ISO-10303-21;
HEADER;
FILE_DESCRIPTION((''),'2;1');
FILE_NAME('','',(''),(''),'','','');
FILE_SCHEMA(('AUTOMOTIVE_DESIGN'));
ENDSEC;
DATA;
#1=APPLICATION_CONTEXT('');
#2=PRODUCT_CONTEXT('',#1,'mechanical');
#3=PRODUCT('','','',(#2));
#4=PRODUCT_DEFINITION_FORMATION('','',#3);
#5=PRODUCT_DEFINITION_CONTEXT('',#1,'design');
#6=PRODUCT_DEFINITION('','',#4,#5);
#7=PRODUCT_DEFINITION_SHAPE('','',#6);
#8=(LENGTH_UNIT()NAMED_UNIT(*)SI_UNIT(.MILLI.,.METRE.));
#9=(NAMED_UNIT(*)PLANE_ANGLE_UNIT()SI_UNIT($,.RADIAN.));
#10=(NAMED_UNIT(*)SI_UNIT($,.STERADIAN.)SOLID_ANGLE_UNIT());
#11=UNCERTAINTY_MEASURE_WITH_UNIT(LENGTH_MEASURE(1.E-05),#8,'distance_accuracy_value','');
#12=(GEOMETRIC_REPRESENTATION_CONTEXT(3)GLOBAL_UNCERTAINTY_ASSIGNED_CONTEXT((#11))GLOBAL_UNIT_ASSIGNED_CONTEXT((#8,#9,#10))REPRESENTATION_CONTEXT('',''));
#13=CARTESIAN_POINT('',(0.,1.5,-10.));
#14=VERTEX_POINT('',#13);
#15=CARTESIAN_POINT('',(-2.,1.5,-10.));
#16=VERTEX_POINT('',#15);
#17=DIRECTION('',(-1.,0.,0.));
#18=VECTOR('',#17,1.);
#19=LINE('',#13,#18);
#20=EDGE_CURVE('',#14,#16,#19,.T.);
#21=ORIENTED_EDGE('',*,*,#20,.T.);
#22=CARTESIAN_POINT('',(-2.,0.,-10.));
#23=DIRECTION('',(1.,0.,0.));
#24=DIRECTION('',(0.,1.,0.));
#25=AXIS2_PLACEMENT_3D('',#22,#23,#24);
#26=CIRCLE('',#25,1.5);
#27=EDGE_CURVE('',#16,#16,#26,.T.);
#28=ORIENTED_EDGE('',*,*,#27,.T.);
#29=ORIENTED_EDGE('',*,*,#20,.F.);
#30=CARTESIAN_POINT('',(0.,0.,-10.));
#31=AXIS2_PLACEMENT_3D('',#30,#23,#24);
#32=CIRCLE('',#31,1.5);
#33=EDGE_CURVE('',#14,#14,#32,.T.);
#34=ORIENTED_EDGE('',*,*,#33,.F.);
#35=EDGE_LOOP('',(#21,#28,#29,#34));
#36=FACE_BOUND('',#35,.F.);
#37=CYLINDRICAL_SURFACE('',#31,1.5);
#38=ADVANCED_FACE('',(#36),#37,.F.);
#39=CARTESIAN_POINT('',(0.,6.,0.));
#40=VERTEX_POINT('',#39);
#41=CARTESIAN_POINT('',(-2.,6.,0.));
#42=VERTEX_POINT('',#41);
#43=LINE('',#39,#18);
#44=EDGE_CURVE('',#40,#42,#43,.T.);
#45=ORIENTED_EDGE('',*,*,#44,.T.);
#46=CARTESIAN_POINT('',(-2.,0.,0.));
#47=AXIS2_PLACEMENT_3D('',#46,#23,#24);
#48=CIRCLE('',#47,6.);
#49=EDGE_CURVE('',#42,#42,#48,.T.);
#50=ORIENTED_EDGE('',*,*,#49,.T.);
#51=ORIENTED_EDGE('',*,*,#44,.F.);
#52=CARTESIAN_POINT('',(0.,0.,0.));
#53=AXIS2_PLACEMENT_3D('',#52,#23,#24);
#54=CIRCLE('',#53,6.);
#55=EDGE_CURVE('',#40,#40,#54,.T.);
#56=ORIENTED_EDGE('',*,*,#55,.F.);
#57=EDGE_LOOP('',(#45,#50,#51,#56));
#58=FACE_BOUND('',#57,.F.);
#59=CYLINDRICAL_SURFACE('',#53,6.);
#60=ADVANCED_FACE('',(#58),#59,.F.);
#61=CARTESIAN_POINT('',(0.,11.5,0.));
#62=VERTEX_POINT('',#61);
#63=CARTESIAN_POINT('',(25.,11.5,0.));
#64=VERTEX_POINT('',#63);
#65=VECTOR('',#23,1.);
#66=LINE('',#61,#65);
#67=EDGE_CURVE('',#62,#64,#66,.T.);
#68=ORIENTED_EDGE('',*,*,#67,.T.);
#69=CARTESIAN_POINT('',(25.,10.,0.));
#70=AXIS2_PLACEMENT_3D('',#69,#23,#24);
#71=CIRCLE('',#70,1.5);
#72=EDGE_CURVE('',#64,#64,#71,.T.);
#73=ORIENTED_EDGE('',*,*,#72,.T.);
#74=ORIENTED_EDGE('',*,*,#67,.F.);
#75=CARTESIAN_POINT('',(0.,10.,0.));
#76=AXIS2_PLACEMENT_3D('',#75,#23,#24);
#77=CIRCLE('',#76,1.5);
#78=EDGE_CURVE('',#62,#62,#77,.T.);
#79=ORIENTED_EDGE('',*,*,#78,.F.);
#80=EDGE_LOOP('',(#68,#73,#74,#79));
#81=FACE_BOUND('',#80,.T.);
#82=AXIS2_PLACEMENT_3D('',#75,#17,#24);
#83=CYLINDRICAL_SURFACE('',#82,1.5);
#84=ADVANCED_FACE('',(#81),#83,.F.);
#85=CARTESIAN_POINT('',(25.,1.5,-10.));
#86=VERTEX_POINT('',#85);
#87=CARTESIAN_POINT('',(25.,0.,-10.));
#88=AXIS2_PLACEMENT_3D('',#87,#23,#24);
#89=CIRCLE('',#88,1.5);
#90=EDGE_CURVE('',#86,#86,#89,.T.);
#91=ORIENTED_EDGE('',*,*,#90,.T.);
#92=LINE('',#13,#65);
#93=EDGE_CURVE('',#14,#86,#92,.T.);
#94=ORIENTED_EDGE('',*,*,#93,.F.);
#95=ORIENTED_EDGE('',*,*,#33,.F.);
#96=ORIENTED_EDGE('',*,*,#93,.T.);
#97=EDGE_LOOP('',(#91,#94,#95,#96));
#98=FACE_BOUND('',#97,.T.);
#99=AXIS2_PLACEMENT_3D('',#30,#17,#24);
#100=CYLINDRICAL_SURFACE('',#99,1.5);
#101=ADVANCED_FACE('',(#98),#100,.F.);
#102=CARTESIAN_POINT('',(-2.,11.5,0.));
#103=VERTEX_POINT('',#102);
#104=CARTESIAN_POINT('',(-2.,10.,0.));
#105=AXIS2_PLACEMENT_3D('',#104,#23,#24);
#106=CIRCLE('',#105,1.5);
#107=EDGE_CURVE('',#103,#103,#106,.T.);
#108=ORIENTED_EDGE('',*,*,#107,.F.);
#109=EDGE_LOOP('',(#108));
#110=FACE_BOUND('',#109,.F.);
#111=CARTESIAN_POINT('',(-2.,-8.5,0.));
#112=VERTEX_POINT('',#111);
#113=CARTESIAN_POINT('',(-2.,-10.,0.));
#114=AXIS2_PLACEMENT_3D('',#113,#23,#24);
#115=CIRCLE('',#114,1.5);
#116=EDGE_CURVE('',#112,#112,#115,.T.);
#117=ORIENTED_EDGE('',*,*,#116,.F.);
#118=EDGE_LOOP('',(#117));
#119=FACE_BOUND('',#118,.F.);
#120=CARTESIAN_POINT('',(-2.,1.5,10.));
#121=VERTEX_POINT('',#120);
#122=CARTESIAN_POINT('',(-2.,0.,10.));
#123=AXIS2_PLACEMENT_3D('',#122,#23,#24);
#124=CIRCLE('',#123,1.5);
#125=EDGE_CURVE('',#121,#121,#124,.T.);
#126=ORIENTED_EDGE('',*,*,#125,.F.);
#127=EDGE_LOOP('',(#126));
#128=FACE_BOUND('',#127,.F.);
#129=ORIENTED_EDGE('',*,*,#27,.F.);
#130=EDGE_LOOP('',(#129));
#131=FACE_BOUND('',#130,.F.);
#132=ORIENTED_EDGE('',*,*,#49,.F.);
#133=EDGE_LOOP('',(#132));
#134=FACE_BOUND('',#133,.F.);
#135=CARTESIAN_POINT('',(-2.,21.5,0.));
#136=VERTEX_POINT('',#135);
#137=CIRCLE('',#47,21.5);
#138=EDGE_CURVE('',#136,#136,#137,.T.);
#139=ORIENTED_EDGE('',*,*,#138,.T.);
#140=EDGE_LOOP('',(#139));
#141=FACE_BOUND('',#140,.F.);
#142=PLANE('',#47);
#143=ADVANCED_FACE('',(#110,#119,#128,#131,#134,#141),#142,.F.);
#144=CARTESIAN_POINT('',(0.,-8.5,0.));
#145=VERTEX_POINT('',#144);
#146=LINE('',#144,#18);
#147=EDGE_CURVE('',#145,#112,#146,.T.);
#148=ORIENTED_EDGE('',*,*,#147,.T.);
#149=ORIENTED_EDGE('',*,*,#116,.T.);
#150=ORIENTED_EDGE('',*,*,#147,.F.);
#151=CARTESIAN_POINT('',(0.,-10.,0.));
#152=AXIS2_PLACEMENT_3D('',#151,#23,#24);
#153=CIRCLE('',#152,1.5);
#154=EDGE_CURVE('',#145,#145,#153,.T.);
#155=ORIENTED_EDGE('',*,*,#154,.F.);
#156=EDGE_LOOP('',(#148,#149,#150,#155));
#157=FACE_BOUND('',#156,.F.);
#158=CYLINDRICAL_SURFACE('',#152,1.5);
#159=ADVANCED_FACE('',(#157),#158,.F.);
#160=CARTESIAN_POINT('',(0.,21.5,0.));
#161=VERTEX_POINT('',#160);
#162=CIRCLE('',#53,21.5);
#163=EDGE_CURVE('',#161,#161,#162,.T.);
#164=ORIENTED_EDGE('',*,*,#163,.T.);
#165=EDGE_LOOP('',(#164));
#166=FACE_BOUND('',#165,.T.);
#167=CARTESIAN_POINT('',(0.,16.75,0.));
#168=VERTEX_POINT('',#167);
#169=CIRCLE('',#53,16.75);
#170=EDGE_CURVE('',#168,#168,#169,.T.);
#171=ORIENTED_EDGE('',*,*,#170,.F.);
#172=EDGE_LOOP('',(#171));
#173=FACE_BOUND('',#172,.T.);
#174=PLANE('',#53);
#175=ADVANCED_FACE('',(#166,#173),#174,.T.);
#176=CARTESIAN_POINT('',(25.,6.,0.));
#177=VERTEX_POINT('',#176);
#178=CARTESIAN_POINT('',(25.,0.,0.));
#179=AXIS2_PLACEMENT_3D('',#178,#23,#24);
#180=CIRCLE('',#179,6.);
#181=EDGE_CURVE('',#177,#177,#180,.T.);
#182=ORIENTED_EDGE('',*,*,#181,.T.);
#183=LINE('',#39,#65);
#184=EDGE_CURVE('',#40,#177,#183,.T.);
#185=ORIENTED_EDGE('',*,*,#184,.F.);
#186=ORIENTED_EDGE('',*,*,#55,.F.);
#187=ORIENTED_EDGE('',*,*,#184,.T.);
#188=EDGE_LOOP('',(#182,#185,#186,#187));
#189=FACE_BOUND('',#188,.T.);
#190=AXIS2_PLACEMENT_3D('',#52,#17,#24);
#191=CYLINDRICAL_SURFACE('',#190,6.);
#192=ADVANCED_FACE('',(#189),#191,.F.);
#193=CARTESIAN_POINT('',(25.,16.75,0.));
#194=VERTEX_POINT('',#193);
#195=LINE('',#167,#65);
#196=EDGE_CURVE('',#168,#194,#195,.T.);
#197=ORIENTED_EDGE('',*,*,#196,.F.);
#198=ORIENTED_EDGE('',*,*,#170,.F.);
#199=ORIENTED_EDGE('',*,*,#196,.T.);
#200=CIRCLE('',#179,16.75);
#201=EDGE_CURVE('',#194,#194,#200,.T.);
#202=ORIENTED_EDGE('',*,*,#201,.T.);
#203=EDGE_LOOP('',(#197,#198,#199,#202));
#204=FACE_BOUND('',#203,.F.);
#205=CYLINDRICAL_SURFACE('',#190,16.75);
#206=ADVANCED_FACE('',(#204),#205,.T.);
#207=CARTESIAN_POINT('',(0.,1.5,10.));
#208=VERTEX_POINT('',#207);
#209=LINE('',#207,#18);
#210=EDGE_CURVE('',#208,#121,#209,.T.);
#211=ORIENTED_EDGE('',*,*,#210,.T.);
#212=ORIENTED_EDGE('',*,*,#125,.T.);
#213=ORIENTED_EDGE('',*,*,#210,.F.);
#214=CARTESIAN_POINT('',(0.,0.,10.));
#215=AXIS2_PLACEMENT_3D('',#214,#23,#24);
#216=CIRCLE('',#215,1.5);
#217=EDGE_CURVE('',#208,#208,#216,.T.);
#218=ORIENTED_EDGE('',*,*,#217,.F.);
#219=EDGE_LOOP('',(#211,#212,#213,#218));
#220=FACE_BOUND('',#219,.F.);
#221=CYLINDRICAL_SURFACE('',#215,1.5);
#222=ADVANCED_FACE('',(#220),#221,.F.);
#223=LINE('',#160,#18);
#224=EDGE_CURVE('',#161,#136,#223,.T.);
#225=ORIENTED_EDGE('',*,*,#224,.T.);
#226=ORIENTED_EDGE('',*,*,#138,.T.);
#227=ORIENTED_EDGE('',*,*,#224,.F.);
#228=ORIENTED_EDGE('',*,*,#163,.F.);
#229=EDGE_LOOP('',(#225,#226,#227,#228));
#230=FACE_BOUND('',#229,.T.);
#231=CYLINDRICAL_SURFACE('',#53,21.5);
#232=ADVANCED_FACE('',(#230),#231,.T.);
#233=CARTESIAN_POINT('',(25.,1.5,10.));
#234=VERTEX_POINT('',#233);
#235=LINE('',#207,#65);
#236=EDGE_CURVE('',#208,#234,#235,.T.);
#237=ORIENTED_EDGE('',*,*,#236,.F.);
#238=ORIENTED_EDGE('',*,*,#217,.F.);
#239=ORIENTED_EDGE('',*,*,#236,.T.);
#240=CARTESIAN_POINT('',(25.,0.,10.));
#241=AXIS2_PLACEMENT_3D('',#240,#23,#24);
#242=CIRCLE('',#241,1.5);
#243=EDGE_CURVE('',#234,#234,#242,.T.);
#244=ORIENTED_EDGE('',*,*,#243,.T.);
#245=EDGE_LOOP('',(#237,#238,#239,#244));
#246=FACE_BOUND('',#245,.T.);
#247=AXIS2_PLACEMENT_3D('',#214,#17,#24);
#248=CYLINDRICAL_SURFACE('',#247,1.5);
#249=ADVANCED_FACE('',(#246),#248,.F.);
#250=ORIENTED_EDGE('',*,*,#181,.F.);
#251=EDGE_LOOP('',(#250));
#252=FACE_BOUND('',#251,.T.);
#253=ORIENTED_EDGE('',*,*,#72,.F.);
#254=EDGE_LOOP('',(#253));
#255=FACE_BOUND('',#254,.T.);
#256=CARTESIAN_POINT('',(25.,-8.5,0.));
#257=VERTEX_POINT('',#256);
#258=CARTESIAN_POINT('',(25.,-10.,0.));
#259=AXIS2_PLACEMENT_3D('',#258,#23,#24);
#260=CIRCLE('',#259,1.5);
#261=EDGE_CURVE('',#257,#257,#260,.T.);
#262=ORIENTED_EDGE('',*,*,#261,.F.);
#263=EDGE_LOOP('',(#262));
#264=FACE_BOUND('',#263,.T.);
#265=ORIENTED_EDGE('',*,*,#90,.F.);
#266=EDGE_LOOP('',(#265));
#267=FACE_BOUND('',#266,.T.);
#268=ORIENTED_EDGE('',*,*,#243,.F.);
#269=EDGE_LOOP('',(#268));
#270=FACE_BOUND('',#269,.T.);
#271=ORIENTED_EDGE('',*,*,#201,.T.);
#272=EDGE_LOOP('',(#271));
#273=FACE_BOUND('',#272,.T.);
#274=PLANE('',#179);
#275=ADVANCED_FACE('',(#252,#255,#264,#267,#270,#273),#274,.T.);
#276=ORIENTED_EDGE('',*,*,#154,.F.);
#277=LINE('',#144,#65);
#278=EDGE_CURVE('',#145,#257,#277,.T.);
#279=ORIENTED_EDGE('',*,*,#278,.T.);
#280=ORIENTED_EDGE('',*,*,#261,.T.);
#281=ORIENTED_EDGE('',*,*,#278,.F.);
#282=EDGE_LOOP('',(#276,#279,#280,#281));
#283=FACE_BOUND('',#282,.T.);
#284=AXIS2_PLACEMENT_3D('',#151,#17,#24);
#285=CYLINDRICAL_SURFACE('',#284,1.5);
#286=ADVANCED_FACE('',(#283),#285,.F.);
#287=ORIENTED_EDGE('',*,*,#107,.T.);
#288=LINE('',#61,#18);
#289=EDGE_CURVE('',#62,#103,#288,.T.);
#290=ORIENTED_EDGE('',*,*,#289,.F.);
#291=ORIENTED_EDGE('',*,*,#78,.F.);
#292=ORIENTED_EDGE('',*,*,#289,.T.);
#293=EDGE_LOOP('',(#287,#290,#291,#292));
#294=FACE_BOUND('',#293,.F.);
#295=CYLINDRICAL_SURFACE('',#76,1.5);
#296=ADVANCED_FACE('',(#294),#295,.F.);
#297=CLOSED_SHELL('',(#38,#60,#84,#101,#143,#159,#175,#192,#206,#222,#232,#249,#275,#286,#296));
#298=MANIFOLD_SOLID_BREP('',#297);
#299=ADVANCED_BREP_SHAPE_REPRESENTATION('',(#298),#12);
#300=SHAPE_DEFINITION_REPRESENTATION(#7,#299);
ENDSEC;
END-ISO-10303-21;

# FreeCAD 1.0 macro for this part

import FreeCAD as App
import Part
import Sketcher
Q = App.Units.Quantity

doc = App.newDocument("Part")
params = doc.addObject("Spreadsheet::Sheet", "Params")
for row, (alias, value) in enumerate([
    ("sketch1_diameter", "3 mm"),
    ("sketch1_diameter2", "12 mm"),
    ("sketch1_diameter3", "33.5 mm"),
    ("pad1_length", "25 mm"),
    ("sketch2_diameter", "43 mm"),
    ("sketch2_diameter2", "3 mm"),
    ("sketch2_diameter3", "12 mm"),
    ("pad2_length", "2 mm"),
], start=1):
    params.set(f"A{row}", alias)
    params.set(f"B{row}", "=" + value)
    params.setAlias(f"B{row}", alias)

body = doc.addObject("PartDesign::Body", "Body")

sketch1 = body.newObject("Sketcher::SketchObject", "Sketch")
sketch1.AttachmentSupport = (doc.getObject("YZ_Plane"), [""])
sketch1.MapMode = "FlatFace"
sketch1.addGeometry([
    Part.Circle(App.Vector(0, 0, 0), App.Vector(0, 0, 1), 16.8),
    Part.Circle(App.Vector(0, -10, 0), App.Vector(0, 0, 1), 1.5),
    Part.Circle(App.Vector(-10, 0, 0), App.Vector(0, 0, 1), 1.5),
    Part.Circle(App.Vector(0, 0, 0), App.Vector(0, 0, 1), 6),
    Part.Circle(App.Vector(10, 0, 0), App.Vector(0, 0, 1), 1.5),
    Part.Circle(App.Vector(0, 10, 0), App.Vector(0, 0, 1), 1.5),
], False)
sketch1.addConstraint([
    Sketcher.Constraint("Coincident", 0, 3, -1, 1),
    Sketcher.Constraint("Coincident", 3, 3, -1, 1),
    Sketcher.Constraint("Equal", 1, 2),
    Sketcher.Constraint("Equal", 2, 4),
    Sketcher.Constraint("Equal", 4, 5),
    Sketcher.Constraint("Symmetric", 2, 3, 4, 3, -1, 1),
    Sketcher.Constraint("Symmetric", 1, 3, 5, 3, -1, 1),
    Sketcher.Constraint("PointOnObject", 1, 3, -2),
    Sketcher.Constraint("PointOnObject", 2, 3, -1),
    Sketcher.Constraint("Diameter", 1, Q("3 mm")),
    Sketcher.Constraint("Diameter", 3, Q("12 mm")),
    Sketcher.Constraint("Diameter", 0, Q("33.5 mm")),
    Sketcher.Constraint("DistanceY", 1, 3, -1, 1, Q("10 mm")),
    Sketcher.Constraint("DistanceX", 2, 3, -1, 1, Q("10 mm")),
])
sketch1.setExpression("Constraints[9]", "Params.sketch1_diameter")
sketch1.setExpression("Constraints[10]", "Params.sketch1_diameter2")
sketch1.setExpression("Constraints[11]", "Params.sketch1_diameter3")
pad1 = body.newObject("PartDesign::Pad", "Pad")
pad1.Profile = sketch1
pad1.setExpression("Length", "Params.pad1_length")

sketch2 = body.newObject("Sketcher::SketchObject", "Sketch001")
sketch2.AttachmentSupport = (doc.getObject("YZ_Plane"), [""])
sketch2.MapMode = "FlatFace"
sketch2.addGeometry([
    Part.Circle(App.Vector(0, 0, 0), App.Vector(0, 0, 1), 21.5),
    Part.Circle(App.Vector(0, -10, 0), App.Vector(0, 0, 1), 1.5),
    Part.Circle(App.Vector(-10, 0, 0), App.Vector(0, 0, 1), 1.5),
    Part.Circle(App.Vector(0, 0, 0), App.Vector(0, 0, 1), 6),
    Part.Circle(App.Vector(10, 0, 0), App.Vector(0, 0, 1), 1.5),
    Part.Circle(App.Vector(0, 10, 0), App.Vector(0, 0, 1), 1.5),
], False)
sketch2.addConstraint([
    Sketcher.Constraint("Coincident", 0, 3, -1, 1),
    Sketcher.Constraint("Coincident", 3, 3, -1, 1),
    Sketcher.Constraint("Equal", 1, 2),
    Sketcher.Constraint("Equal", 2, 4),
    Sketcher.Constraint("Equal", 4, 5),
    Sketcher.Constraint("Symmetric", 2, 3, 4, 3, -1, 1),
    Sketcher.Constraint("Symmetric", 1, 3, 5, 3, -1, 1),
    Sketcher.Constraint("PointOnObject", 1, 3, -2),
    Sketcher.Constraint("PointOnObject", 2, 3, -1),
    Sketcher.Constraint("Diameter", 0, Q("43 mm")),
    Sketcher.Constraint("Diameter", 1, Q("3 mm")),
    Sketcher.Constraint("Diameter", 3, Q("12 mm")),
    Sketcher.Constraint("DistanceY", 1, 3, -1, 1, Q("10 mm")),
    Sketcher.Constraint("DistanceX", 2, 3, -1, 1, Q("10 mm")),
])
sketch2.setExpression("Constraints[9]", "Params.sketch2_diameter")
sketch2.setExpression("Constraints[10]", "Params.sketch2_diameter2")
sketch2.setExpression("Constraints[11]", "Params.sketch2_diameter3")
pad2 = body.newObject("PartDesign::Pad", "Pad001")
pad2.Profile = sketch2
pad2.setExpression("Length", "Params.pad2_length")
pad2.Reversed = True

doc.recompute()
